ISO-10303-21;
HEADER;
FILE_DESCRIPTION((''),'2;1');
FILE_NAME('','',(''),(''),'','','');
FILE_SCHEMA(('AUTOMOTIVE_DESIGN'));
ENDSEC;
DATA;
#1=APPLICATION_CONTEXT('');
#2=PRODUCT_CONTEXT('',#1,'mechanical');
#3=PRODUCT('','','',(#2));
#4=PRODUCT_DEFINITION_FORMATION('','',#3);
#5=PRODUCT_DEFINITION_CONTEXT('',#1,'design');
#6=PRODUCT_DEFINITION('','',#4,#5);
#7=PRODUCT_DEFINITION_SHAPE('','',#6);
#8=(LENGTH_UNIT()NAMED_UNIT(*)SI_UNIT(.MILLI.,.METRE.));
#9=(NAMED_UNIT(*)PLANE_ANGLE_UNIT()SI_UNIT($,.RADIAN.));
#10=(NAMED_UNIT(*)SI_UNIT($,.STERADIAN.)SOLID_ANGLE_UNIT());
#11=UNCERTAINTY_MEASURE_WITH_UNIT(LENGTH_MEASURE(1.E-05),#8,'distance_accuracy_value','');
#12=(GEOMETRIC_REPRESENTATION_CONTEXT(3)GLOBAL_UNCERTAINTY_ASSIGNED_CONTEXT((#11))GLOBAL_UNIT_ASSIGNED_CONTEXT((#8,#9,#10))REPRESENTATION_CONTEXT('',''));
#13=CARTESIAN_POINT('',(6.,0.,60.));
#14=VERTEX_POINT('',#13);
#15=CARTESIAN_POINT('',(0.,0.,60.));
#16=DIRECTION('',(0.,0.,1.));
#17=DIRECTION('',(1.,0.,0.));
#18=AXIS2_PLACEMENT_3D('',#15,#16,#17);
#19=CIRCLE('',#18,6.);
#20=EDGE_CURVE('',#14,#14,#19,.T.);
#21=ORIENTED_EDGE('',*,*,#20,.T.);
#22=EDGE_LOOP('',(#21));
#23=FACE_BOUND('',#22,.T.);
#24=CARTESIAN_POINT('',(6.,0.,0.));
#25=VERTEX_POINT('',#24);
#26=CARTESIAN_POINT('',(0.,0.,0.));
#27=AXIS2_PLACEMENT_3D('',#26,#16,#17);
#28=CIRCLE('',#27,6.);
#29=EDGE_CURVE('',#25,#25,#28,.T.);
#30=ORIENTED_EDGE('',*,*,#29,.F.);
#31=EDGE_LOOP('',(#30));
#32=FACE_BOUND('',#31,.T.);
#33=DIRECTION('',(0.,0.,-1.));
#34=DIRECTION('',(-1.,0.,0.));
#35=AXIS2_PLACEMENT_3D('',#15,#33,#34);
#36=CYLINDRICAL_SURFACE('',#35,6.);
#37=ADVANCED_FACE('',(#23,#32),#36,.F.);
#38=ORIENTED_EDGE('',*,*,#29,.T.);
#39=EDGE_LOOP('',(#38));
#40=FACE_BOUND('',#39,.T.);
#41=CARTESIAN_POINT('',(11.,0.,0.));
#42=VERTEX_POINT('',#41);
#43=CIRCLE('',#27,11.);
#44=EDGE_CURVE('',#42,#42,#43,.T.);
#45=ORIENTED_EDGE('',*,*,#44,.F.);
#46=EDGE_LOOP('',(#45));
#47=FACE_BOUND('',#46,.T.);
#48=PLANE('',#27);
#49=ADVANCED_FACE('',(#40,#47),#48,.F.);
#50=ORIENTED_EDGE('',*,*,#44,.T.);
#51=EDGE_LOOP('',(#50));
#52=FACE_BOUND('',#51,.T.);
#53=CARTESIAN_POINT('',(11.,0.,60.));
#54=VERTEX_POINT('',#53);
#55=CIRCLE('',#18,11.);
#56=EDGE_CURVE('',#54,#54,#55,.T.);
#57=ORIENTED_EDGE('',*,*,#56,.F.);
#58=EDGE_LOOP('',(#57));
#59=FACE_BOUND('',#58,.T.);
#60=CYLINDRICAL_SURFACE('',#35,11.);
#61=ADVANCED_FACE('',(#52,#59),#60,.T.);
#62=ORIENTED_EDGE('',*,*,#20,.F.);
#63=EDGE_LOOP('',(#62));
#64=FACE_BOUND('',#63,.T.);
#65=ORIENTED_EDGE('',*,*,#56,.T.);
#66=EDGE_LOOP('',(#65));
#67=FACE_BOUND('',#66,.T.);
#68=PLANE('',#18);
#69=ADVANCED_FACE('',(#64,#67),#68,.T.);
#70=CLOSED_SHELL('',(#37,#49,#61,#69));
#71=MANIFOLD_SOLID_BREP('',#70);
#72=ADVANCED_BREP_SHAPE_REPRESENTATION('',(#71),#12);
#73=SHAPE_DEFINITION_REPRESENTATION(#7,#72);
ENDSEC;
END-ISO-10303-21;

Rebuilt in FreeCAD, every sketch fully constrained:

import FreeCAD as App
import Part
import Sketcher

V = App.Vector

doc = App.newDocument("Part")
body = doc.addObject("PartDesign::Body", "Body")

sketch1 = body.newObject("Sketcher::SketchObject", "Sketch")
sketch1.AttachmentSupport = (doc.getObject("XY_Plane"), [""])
sketch1.MapMode = "FlatFace"
sketch1.addGeometry(Part.Circle(V(0, 0, 0), V(0, 0, 1), 11), False)
sketch1.addGeometry(Part.Circle(V(0, 0, 0), V(0, 0, 1), 6), False)
sketch1.addConstraint(Sketcher.Constraint("Coincident", 0, 3, -1, 1))
sketch1.addConstraint(Sketcher.Constraint("Coincident", 1, 3, -1, 1))
sketch1.addConstraint(Sketcher.Constraint("Diameter", 0, 22.0))
sketch1.addConstraint(Sketcher.Constraint("Diameter", 1, 12.0))
pad1 = body.newObject("PartDesign::Pad", "Pad")
pad1.Profile = sketch1
pad1.Length = 60

doc.recompute()
